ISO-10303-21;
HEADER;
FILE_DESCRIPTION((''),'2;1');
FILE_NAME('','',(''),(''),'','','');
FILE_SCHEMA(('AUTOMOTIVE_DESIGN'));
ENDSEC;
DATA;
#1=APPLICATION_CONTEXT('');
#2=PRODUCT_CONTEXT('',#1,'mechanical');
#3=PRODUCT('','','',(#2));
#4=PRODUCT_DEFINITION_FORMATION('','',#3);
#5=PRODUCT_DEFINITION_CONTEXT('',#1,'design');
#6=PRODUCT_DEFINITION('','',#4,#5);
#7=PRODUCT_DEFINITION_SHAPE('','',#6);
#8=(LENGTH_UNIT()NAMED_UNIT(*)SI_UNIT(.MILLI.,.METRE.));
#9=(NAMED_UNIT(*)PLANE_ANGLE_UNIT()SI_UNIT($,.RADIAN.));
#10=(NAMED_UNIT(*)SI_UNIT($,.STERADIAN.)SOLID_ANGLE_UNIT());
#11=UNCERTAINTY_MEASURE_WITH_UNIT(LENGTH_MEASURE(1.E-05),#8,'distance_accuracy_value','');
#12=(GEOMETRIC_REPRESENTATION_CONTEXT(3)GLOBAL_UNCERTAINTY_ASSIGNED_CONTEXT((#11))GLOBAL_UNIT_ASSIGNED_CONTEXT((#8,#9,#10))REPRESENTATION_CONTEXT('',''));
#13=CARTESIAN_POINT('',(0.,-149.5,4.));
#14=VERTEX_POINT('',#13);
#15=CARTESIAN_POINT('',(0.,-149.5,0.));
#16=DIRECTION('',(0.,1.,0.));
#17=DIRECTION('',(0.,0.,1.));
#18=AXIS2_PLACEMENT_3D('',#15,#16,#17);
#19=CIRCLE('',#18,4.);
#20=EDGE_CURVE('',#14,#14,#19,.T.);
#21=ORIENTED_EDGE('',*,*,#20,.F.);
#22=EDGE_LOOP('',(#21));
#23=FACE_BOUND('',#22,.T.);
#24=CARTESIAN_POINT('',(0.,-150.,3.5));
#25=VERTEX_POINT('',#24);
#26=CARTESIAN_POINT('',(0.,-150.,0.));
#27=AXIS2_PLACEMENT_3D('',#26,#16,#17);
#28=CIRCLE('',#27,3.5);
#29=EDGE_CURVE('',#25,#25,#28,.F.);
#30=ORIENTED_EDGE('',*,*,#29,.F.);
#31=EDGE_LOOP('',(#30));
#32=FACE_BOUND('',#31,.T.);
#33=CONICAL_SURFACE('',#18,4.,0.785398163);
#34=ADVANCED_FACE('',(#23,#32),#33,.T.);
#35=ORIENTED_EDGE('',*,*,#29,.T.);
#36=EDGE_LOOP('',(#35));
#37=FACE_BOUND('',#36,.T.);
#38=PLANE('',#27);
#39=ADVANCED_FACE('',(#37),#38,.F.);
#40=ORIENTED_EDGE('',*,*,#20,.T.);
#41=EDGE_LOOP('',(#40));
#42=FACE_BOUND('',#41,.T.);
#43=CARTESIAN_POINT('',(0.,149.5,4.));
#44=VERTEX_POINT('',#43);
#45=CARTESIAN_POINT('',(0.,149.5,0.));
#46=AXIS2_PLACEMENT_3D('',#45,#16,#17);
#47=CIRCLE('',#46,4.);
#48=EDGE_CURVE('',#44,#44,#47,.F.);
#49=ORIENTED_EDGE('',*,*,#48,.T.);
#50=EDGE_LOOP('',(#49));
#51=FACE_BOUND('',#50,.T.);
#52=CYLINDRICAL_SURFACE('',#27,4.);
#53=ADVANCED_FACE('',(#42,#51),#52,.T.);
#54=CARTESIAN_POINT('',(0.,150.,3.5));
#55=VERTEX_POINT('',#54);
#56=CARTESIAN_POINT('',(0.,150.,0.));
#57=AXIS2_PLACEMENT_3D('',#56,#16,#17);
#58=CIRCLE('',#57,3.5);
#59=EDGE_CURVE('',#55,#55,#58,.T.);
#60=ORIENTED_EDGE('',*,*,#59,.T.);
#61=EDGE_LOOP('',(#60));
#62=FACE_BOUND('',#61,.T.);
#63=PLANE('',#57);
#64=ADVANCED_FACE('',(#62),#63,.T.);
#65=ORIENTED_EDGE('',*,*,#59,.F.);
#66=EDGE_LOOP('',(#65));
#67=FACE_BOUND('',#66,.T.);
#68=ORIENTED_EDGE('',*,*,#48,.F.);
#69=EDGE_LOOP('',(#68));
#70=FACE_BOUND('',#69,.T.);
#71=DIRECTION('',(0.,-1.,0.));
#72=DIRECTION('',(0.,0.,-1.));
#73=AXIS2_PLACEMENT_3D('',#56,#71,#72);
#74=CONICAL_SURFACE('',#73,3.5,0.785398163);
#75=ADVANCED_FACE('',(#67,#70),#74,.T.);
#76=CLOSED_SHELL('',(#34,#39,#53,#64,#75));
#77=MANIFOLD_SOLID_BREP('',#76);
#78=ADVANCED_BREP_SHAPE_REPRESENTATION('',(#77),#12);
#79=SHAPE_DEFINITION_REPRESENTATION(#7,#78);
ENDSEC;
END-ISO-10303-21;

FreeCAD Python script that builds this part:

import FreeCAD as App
import Part
import Sketcher

V = App.Vector


def edges_at(feature, points):
    """Names of the edges that pass closest to the given points."""
    edges = feature.Shape.Edges
    near = lambda p: min(range(len(edges)), key=lambda i: edges[i].distToShape(Part.Vertex(*p))[0])
    return sorted({f"Edge{near(p) + 1}" for p in points})

doc = App.newDocument("Part")
body = doc.addObject("PartDesign::Body", "Body")

sketch1 = body.newObject("Sketcher::SketchObject", "Sketch")
sketch1.AttachmentSupport = (doc.getObject("XZ_Plane"), [""])
sketch1.MapMode = "FlatFace"
sketch1.addGeometry(Part.Circle(V(0, 0, 0), V(0, 0, 1), 4), False)
sketch1.addConstraint([
    Sketcher.Constraint("Coincident", 0, 3, -1, 1),
    Sketcher.Constraint("Diameter", 0, 8.0),
])
pad1 = body.newObject("PartDesign::Pad", "Pad")
pad1.Profile = sketch1
pad1.Type = "TwoLengths"
pad1.Length = 150
pad1.Length2 = 150
pad1.Reversed = True
doc.recompute()

chamfer = body.newObject("PartDesign::Chamfer", "Chamfer")
chamfer.Base = (pad1, edges_at(pad1, [(-4, 150, 0), (-4, -150, 0)]))
chamfer.Size = 0.5

doc.recompute()
